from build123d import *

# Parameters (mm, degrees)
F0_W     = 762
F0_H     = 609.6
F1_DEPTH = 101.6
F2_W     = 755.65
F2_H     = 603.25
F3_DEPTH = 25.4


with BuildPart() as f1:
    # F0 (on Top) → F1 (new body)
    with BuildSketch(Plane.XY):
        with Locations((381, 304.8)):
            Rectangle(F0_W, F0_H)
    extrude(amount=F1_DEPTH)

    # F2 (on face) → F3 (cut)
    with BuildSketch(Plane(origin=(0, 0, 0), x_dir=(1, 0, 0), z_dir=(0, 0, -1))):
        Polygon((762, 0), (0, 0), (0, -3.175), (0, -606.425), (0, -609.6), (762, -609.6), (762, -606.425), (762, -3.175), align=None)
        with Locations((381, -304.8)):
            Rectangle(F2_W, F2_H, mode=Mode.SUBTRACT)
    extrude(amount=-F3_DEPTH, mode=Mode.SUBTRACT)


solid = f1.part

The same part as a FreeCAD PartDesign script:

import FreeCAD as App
import Part
import Sketcher

V = App.Vector
Q = App.Units.Quantity


def add_polygon(sketch, points):
    """Adds a closed chain of lines whose ends are joined by coincident constraints."""
    first, n = sketch.GeometryCount, len(points)
    for a, b in zip(points, points[1:] + points[:1]):
        sketch.addGeometry(Part.LineSegment(App.Vector(*a, 0), App.Vector(*b, 0)), False)
    for i in range(n):
        sketch.addConstraint(Sketcher.Constraint("Coincident", first + i, 2, first + (i + 1) % n, 1))

doc = App.newDocument("Part")
params = doc.addObject("Spreadsheet::Sheet", "Params")
for row, (alias, value) in enumerate([
    ("sketch1_width", "30 in"),
    ("sketch1_height", "24 in"),
    ("pad1_length", "4 in"),
    ("sketch2_width", "30 in"),
    ("sketch2_height", "24 in"),
    ("sketch2_width2", "29.75 in"),
    ("sketch2_height2", "23.75 in"),
    ("pocket1_length", "1 in"),
], start=1):
    params.set(f"A{row}", alias)
    params.set(f"B{row}", "=" + value)
    params.setAlias(f"B{row}", alias)

body = doc.addObject("PartDesign::Body", "Body")

sketch1 = body.newObject("Sketcher::SketchObject", "Sketch")
sketch1.AttachmentSupport = (doc.getObject("XY_Plane"), [""])
sketch1.MapMode = "FlatFace"
add_polygon(sketch1, [(0, 610), (0, 0), (762, 0), (762, 610)])
sketch1.addConstraint([
    Sketcher.Constraint("Vertical", 0),
    Sketcher.Constraint("Horizontal", 1),
    Sketcher.Constraint("Vertical", 2),
    Sketcher.Constraint("Horizontal", 3),
    Sketcher.Constraint("Coincident", 0, 2, -1, 1),
    Sketcher.Constraint("DistanceX", 1, 1, 1, 2, Q("30 in")),
    Sketcher.Constraint("DistanceY", 0, 2, 0, 1, Q("24 in")),
])
sketch1.setExpression("Constraints[9]", "Params.sketch1_width")
sketch1.setExpression("Constraints[10]", "Params.sketch1_height")
pad1 = body.newObject("PartDesign::Pad", "Pad")
pad1.Profile = sketch1
pad1.setExpression("Length", "Params.pad1_length")

sketch2 = body.newObject("Sketcher::SketchObject", "Sketch001")
sketch2.AttachmentSupport = (doc.getObject("XY_Plane"), [""])
sketch2.MapMode = "FlatFace"
add_polygon(sketch2, [(762, 0), (0, 0), (0, 610), (762, 610)])
add_polygon(sketch2, [(759, 606), (3, 606), (3, 3), (759, 3)])
sketch2.addConstraint([
    Sketcher.Constraint("Horizontal", 0),
    Sketcher.Constraint("Vertical", 1),
    Sketcher.Constraint("Horizontal", 2),
    Sketcher.Constraint("Vertical", 3),
    Sketcher.Constraint("Horizontal", 4),
    Sketcher.Constraint("Vertical", 5),
    Sketcher.Constraint("Horizontal", 6),
    Sketcher.Constraint("Vertical", 7),
    Sketcher.Constraint("Coincident", 0, 2, -1, 1),
    Sketcher.Constraint("DistanceX", 0, 2, 0, 1, Q("30 in")),
    Sketcher.Constraint("DistanceY", 1, 1, 1, 2, Q("24 in")),
    Sketcher.Constraint("DistanceX", 4, 2, 4, 1, Q("29.75 in")),
    Sketcher.Constraint("DistanceY", 5, 2, 5, 1, Q("23.75 in")),
    Sketcher.Constraint("DistanceX", -1, 1, 4, 2, Q("0.125 in")),
    Sketcher.Constraint("DistanceY", -1, 1, 4, 2, Q("23.875 in")),
])
sketch2.setExpression("Constraints[17]", "Params.sketch2_width")
sketch2.setExpression("Constraints[18]", "Params.sketch2_height")
sketch2.setExpression("Constraints[19]", "Params.sketch2_width2")
sketch2.setExpression("Constraints[20]", "Params.sketch2_height2")
pocket1 = body.newObject("PartDesign::Pocket", "Pocket")
pocket1.Profile = sketch2
pocket1.setExpression("Length", "Params.pocket1_length")
pocket1.Reversed = True

doc.recompute()
